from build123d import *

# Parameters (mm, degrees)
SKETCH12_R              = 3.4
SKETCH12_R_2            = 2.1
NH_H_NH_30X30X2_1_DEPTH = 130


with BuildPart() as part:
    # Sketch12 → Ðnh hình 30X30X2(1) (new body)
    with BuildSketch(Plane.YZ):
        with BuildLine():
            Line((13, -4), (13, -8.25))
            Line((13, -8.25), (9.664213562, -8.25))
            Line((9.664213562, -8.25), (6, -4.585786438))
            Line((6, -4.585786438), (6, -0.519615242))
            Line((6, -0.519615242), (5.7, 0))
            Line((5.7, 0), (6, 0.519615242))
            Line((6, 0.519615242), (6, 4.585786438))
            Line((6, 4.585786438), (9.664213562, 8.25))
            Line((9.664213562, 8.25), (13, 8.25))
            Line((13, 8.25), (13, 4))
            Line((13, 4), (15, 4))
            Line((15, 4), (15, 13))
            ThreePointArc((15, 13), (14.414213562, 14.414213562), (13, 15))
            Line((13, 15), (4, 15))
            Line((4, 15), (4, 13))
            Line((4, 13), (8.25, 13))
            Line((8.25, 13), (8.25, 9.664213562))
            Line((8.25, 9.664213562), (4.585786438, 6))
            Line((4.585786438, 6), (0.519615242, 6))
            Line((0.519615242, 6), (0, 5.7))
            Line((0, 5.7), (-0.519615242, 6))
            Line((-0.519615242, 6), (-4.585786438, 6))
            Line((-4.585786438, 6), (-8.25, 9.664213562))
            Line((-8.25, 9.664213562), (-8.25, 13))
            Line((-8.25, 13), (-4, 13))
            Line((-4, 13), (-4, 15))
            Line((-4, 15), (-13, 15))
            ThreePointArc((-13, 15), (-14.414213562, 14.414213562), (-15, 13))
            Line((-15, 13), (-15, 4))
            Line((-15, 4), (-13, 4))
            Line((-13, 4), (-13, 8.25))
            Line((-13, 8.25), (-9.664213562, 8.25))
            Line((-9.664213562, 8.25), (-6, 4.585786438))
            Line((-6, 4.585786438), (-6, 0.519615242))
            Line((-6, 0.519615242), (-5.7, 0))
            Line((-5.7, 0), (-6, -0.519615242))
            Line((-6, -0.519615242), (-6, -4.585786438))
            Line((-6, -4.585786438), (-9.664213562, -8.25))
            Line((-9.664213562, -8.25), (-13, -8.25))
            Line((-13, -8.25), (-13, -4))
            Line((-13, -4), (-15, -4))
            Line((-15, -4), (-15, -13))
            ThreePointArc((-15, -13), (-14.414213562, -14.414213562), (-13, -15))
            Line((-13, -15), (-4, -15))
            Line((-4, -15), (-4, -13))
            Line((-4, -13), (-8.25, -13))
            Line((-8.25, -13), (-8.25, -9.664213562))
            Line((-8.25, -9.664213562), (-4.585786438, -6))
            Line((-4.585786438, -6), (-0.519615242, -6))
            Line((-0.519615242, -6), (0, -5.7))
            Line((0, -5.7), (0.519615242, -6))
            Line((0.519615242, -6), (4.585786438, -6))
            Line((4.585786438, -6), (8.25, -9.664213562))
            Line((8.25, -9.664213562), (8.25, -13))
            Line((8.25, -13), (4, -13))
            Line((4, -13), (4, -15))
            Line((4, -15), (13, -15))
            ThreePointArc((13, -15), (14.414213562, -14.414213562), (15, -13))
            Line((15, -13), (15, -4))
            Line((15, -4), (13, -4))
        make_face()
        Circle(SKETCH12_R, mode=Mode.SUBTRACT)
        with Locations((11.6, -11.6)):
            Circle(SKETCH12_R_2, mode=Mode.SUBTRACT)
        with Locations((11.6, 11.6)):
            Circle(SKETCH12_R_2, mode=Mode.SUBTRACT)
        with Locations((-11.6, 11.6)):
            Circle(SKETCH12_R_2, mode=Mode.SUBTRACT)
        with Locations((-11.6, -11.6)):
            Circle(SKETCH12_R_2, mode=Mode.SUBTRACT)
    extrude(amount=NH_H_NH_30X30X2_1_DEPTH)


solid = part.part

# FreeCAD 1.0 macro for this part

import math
import FreeCAD as App
import Part
import Sketcher
from FreeCAD import Vector
Q = App.Units.Quantity

doc = App.newDocument("Part")
body = doc.addObject("PartDesign::Body", "Body")

# Sketch on YZ plane
sketch1 = body.newObject("Sketcher::SketchObject", "Sketch")
sketch1.AttachmentSupport = (doc.getObject("YZ_Plane"), [""])
sketch1.MapMode = "FlatFace"
sketch1.addGeometry([
    Part.LineSegment(Vector(13, -4, 0), Vector(13, -8.2, 0)),  # 0
    Part.LineSegment(Vector(13, -8.2, 0), Vector(9.7, -8.2, 0)),  # 1
    Part.LineSegment(Vector(9.7, -8.2, 0), Vector(6, -4.6, 0)),  # 2
    Part.LineSegment(Vector(6, -4.6, 0), Vector(6, -0.5, 0)),  # 3
    Part.LineSegment(Vector(6, -0.5, 0), Vector(5.7, 0, 0)),  # 4
    Part.LineSegment(Vector(5.7, 0, 0), Vector(6, 0.5, 0)),  # 5
    Part.LineSegment(Vector(6, 0.5, 0), Vector(6, 4.6, 0)),  # 6
    Part.LineSegment(Vector(6, 4.6, 0), Vector(9.7, 8.2, 0)),  # 7
    Part.LineSegment(Vector(9.7, 8.2, 0), Vector(13, 8.2, 0)),  # 8
    Part.LineSegment(Vector(13, 8.2, 0), Vector(13, 4, 0)),  # 9
    Part.LineSegment(Vector(13, 4, 0), Vector(15, 4, 0)),  # 10
    Part.LineSegment(Vector(15, 4, 0), Vector(15, 13, 0)),  # 11
    Part.ArcOfCircle(Part.Circle(Vector(13, 13, 0), Vector(0, 0, 1), 2), math.radians(0), math.radians(90)),  # 12
    Part.LineSegment(Vector(13, 15, 0), Vector(4, 15, 0)),  # 13
    Part.LineSegment(Vector(4, 15, 0), Vector(4, 13, 0)),  # 14
    Part.LineSegment(Vector(4, 13, 0), Vector(8.2, 13, 0)),  # 15
    Part.LineSegment(Vector(8.2, 13, 0), Vector(8.2, 9.7, 0)),  # 16
    Part.LineSegment(Vector(8.2, 9.7, 0), Vector(4.6, 6, 0)),  # 17
    Part.LineSegment(Vector(4.6, 6, 0), Vector(0.5, 6, 0)),  # 18
    Part.LineSegment(Vector(0.5, 6, 0), Vector(0, 5.7, 0)),  # 19
    Part.LineSegment(Vector(0, 5.7, 0), Vector(-0.5, 6, 0)),  # 20
    Part.LineSegment(Vector(-0.5, 6, 0), Vector(-4.6, 6, 0)),  # 21
    Part.LineSegment(Vector(-4.6, 6, 0), Vector(-8.2, 9.7, 0)),  # 22
    Part.LineSegment(Vector(-8.2, 9.7, 0), Vector(-8.2, 13, 0)),  # 23
    Part.LineSegment(Vector(-8.2, 13, 0), Vector(-4, 13, 0)),  # 24
    Part.LineSegment(Vector(-4, 13, 0), Vector(-4, 15, 0)),  # 25
    Part.LineSegment(Vector(-4, 15, 0), Vector(-13, 15, 0)),  # 26
    Part.ArcOfCircle(Part.Circle(Vector(-13, 13, 0), Vector(0, 0, 1), 2), math.radians(90), math.radians(180)),  # 27
    Part.LineSegment(Vector(-15, 13, 0), Vector(-15, 4, 0)),  # 28
    Part.LineSegment(Vector(-15, 4, 0), Vector(-13, 4, 0)),  # 29
    Part.LineSegment(Vector(-13, 4, 0), Vector(-13, 8.2, 0)),  # 30
    Part.LineSegment(Vector(-13, 8.2, 0), Vector(-9.7, 8.2, 0)),  # 31
    Part.LineSegment(Vector(-9.7, 8.2, 0), Vector(-6, 4.6, 0)),  # 32
    Part.LineSegment(Vector(-6, 4.6, 0), Vector(-6, 0.5, 0)),  # 33
    Part.LineSegment(Vector(-6, 0.5, 0), Vector(-5.7, 0, 0)),  # 34
    Part.LineSegment(Vector(-5.7, 0, 0), Vector(-6, -0.5, 0)),  # 35
    Part.LineSegment(Vector(-6, -0.5, 0), Vector(-6, -4.6, 0)),  # 36
    Part.LineSegment(Vector(-6, -4.6, 0), Vector(-9.7, -8.2, 0)),  # 37
    Part.LineSegment(Vector(-9.7, -8.2, 0), Vector(-13, -8.2, 0)),  # 38
    Part.LineSegment(Vector(-13, -8.2, 0), Vector(-13, -4, 0)),  # 39
    Part.LineSegment(Vector(-13, -4, 0), Vector(-15, -4, 0)),  # 40
    Part.LineSegment(Vector(-15, -4, 0), Vector(-15, -13, 0)),  # 41
    Part.ArcOfCircle(Part.Circle(Vector(-13, -13, 0), Vector(0, 0, 1), 2), math.radians(-180), math.radians(-90)),  # 42
    Part.LineSegment(Vector(-13, -15, 0), Vector(-4, -15, 0)),  # 43
    Part.LineSegment(Vector(-4, -15, 0), Vector(-4, -13, 0)),  # 44
    Part.LineSegment(Vector(-4, -13, 0), Vector(-8.2, -13, 0)),  # 45
    Part.LineSegment(Vector(-8.2, -13, 0), Vector(-8.2, -9.7, 0)),  # 46
    Part.LineSegment(Vector(-8.2, -9.7, 0), Vector(-4.6, -6, 0)),  # 47
    Part.LineSegment(Vector(-4.6, -6, 0), Vector(-0.5, -6, 0)),  # 48
    Part.LineSegment(Vector(-0.5, -6, 0), Vector(0, -5.7, 0)),  # 49
    Part.LineSegment(Vector(0, -5.7, 0), Vector(0.5, -6, 0)),  # 50
    Part.LineSegment(Vector(0.5, -6, 0), Vector(4.6, -6, 0)),  # 51
    Part.LineSegment(Vector(4.6, -6, 0), Vector(8.2, -9.7, 0)),  # 52
    Part.LineSegment(Vector(8.2, -9.7, 0), Vector(8.2, -13, 0)),  # 53
    Part.LineSegment(Vector(8.2, -13, 0), Vector(4, -13, 0)),  # 54
    Part.LineSegment(Vector(4, -13, 0), Vector(4, -15, 0)),  # 55
    Part.LineSegment(Vector(4, -15, 0), Vector(13, -15, 0)),  # 56
    Part.ArcOfCircle(Part.Circle(Vector(13, -13, 0), Vector(0, 0, 1), 2), math.radians(-90), math.radians(0)),  # 57
    Part.LineSegment(Vector(15, -13, 0), Vector(15, -4, 0)),  # 58
    Part.LineSegment(Vector(15, -4, 0), Vector(13, -4, 0)),  # 59
    Part.Circle(Vector(-11.6, -11.6, 0), Vector(0, 0, 1), 2.1),  # 60
    Part.Circle(Vector(11.6, -11.6, 0), Vector(0, 0, 1), 2.1),  # 61
    Part.Circle(Vector(-11.6, 11.6, 0), Vector(0, 0, 1), 2.1),  # 62
    Part.Circle(Vector(0, 0, 0), Vector(0, 0, 1), 3.4),  # 63
    Part.Circle(Vector(11.6, 11.6, 0), Vector(0, 0, 1), 2.1),  # 64
], False)
sketch1.addConstraint([
    Sketcher.Constraint("Coincident", 0, 2, 1, 1),
    Sketcher.Constraint("Coincident", 1, 2, 2, 1),
    Sketcher.Constraint("Coincident", 2, 2, 3, 1),
    Sketcher.Constraint("Coincident", 3, 2, 4, 1),
    Sketcher.Constraint("Coincident", 4, 2, 5, 1),
    Sketcher.Constraint("Coincident", 5, 2, 6, 1),
    Sketcher.Constraint("Coincident", 6, 2, 7, 1),
    Sketcher.Constraint("Coincident", 7, 2, 8, 1),
    Sketcher.Constraint("Coincident", 8, 2, 9, 1),
    Sketcher.Constraint("Coincident", 9, 2, 10, 1),
    Sketcher.Constraint("Coincident", 10, 2, 11, 1),
    Sketcher.Constraint("Tangent", 11, 2, 12, 1),
    Sketcher.Constraint("Tangent", 12, 2, 13, 1),
    Sketcher.Constraint("Coincident", 13, 2, 14, 1),
    Sketcher.Constraint("Coincident", 14, 2, 15, 1),
    Sketcher.Constraint("Coincident", 15, 2, 16, 1),
    Sketcher.Constraint("Coincident", 16, 2, 17, 1),
    Sketcher.Constraint("Coincident", 17, 2, 18, 1),
    Sketcher.Constraint("Coincident", 18, 2, 19, 1),
    Sketcher.Constraint("Coincident", 19, 2, 20, 1),
    Sketcher.Constraint("Coincident", 20, 2, 21, 1),
    Sketcher.Constraint("Coincident", 21, 2, 22, 1),
    Sketcher.Constraint("Coincident", 22, 2, 23, 1),
    Sketcher.Constraint("Coincident", 23, 2, 24, 1),
    Sketcher.Constraint("Coincident", 24, 2, 25, 1),
    Sketcher.Constraint("Coincident", 25, 2, 26, 1),
    Sketcher.Constraint("Tangent", 26, 2, 27, 1),
    Sketcher.Constraint("Tangent", 27, 2, 28, 1),
    Sketcher.Constraint("Coincident", 28, 2, 29, 1),
    Sketcher.Constraint("Coincident", 29, 2, 30, 1),
    Sketcher.Constraint("Coincident", 30, 2, 31, 1),
    Sketcher.Constraint("Coincident", 31, 2, 32, 1),
    Sketcher.Constraint("Coincident", 32, 2, 33, 1),
    Sketcher.Constraint("Coincident", 33, 2, 34, 1),
    Sketcher.Constraint("Coincident", 34, 2, 35, 1),
    Sketcher.Constraint("Coincident", 35, 2, 36, 1),
    Sketcher.Constraint("Coincident", 36, 2, 37, 1),
    Sketcher.Constraint("Coincident", 37, 2, 38, 1),
    Sketcher.Constraint("Coincident", 38, 2, 39, 1),
    Sketcher.Constraint("Coincident", 39, 2, 40, 1),
    Sketcher.Constraint("Coincident", 40, 2, 41, 1),
    Sketcher.Constraint("Tangent", 41, 2, 42, 1),
    Sketcher.Constraint("Tangent", 42, 2, 43, 1),
    Sketcher.Constraint("Coincident", 43, 2, 44, 1),
    Sketcher.Constraint("Coincident", 44, 2, 45, 1),
    Sketcher.Constraint("Coincident", 45, 2, 46, 1),
    Sketcher.Constraint("Coincident", 46, 2, 47, 1),
    Sketcher.Constraint("Coincident", 47, 2, 48, 1),
    Sketcher.Constraint("Coincident", 48, 2, 49, 1),
    Sketcher.Constraint("Coincident", 49, 2, 50, 1),
    Sketcher.Constraint("Coincident", 50, 2, 51, 1),
    Sketcher.Constraint("Coincident", 51, 2, 52, 1),
    Sketcher.Constraint("Coincident", 52, 2, 53, 1),
    Sketcher.Constraint("Coincident", 53, 2, 54, 1),
    Sketcher.Constraint("Coincident", 54, 2, 55, 1),
    Sketcher.Constraint("Coincident", 55, 2, 56, 1),
    Sketcher.Constraint("Tangent", 56, 2, 57, 1),
    Sketcher.Constraint("Tangent", 57, 2, 58, 1),
    Sketcher.Constraint("Coincident", 58, 2, 59, 1),
    Sketcher.Constraint("Coincident", 59, 2, 0, 1),
    Sketcher.Constraint("Vertical", 0),
    Sketcher.Constraint("Horizontal", 1),
    Sketcher.Constraint("Vertical", 3),
    Sketcher.Constraint("Vertical", 6),
    Sketcher.Constraint("Horizontal", 8),
    Sketcher.Constraint("Vertical", 9),
    Sketcher.Constraint("Horizontal", 10),
    Sketcher.Constraint("Vertical", 11),
    Sketcher.Constraint("Horizontal", 13),
    Sketcher.Constraint("Vertical", 14),
    Sketcher.Constraint("Horizontal", 15),
    Sketcher.Constraint("Vertical", 16),
    Sketcher.Constraint("Horizontal", 18),
    Sketcher.Constraint("Horizontal", 21),
    Sketcher.Constraint("Vertical", 23),
    Sketcher.Constraint("Horizontal", 24),
    Sketcher.Constraint("Vertical", 25),
    Sketcher.Constraint("Horizontal", 26),
    Sketcher.Constraint("Vertical", 28),
    Sketcher.Constraint("Horizontal", 29),
    Sketcher.Constraint("Vertical", 30),
    Sketcher.Constraint("Horizontal", 31),
    Sketcher.Constraint("Vertical", 33),
    Sketcher.Constraint("Vertical", 36),
    Sketcher.Constraint("Horizontal", 38),
    Sketcher.Constraint("Vertical", 39),
    Sketcher.Constraint("Horizontal", 40),
    Sketcher.Constraint("Vertical", 41),
    Sketcher.Constraint("Horizontal", 43),
    Sketcher.Constraint("Vertical", 44),
    Sketcher.Constraint("Horizontal", 45),
    Sketcher.Constraint("Vertical", 46),
    Sketcher.Constraint("Horizontal", 48),
    Sketcher.Constraint("Horizontal", 51),
    Sketcher.Constraint("Vertical", 53),
    Sketcher.Constraint("Horizontal", 54),
    Sketcher.Constraint("Vertical", 55),
    Sketcher.Constraint("Horizontal", 56),
    Sketcher.Constraint("Vertical", 58),
    Sketcher.Constraint("Horizontal", 59),
    Sketcher.Constraint("Coincident", 63, 3, -1, 1),
    Sketcher.Constraint("Equal", 12, 27),
    Sketcher.Constraint("Equal", 27, 42),
    Sketcher.Constraint("Equal", 42, 57),
    Sketcher.Constraint("Equal", 60, 61),
    Sketcher.Constraint("Equal", 61, 62),
    Sketcher.Constraint("Equal", 62, 64),
    Sketcher.Constraint("Symmetric", 12, 3, 42, 3, -1, 1),
    Sketcher.Constraint("Symmetric", 27, 3, 57, 3, -1, 1),
    Sketcher.Constraint("Symmetric", 61, 3, 62, 3, -1, 1),
    Sketcher.Constraint("Symmetric", 60, 3, 64, 3, -1, 1),
    Sketcher.Constraint("Symmetric", 0, 2, 30, 2, -1, 1),
    Sketcher.Constraint("Symmetric", 2, 2, 32, 2, -1, 1),
    Sketcher.Constraint("Symmetric", 4, 2, 34, 2, -1, 1),
    Sketcher.Constraint("Symmetric", 5, 2, 35, 2, -1, 1),
    Sketcher.Constraint("Symmetric", 7, 2, 37, 2, -1, 1),
    Sketcher.Constraint("Symmetric", 9, 2, 39, 2, -1, 1),
    Sketcher.Constraint("Symmetric", 14, 2, 44, 2, -1, 1),
    Sketcher.Constraint("Symmetric", 16, 2, 46, 2, -1, 1),
    Sketcher.Constraint("Symmetric", 17, 2, 47, 2, -1, 1),
    Sketcher.Constraint("Symmetric", 19, 2, 49, 2, -1, 1),
    Sketcher.Constraint("Symmetric", 20, 2, 50, 2, -1, 1),
    Sketcher.Constraint("Symmetric", 22, 2, 52, 2, -1, 1),
    Sketcher.Constraint("Symmetric", 24, 2, 54, 2, -1, 1),
    Sketcher.Constraint("Symmetric", 12, 3, 27, 3, -2),
    Sketcher.Constraint("Symmetric", 60, 3, 61, 3, -2),
    Sketcher.Constraint("Symmetric", 18, 2, 20, 2, -2),
    Sketcher.Constraint("Symmetric", 16, 2, 22, 2, -2),
    Sketcher.Constraint("Symmetric", 14, 2, 24, 2, -2),
    Sketcher.Constraint("Symmetric", 9, 2, 29, 2, -2),
    Sketcher.Constraint("Symmetric", 7, 2, 31, 2, -2),
    Sketcher.Constraint("Symmetric", 6, 2, 32, 2, -2),
    Sketcher.Constraint("PointOnObject", 4, 2, -1),
    Sketcher.Constraint("PointOnObject", 19, 2, -2),
    Sketcher.Constraint("Perpendicular", 2, 7),
    Sketcher.Constraint("Parallel", 7, 17),
    Sketcher.Constraint("Perpendicular", 4, 19),
    Sketcher.Constraint("Perpendicular", 5, 20),
    Sketcher.Constraint("Perpendicular", 17, 22),
    Sketcher.Constraint("Parallel", 22, 32),
    Sketcher.Constraint("Perpendicular", 19, 34),
    Sketcher.Constraint("Perpendicular", 32, 37),
    Sketcher.Constraint("Perpendicular", 34, 49),
    Sketcher.Constraint("Perpendicular", 47, 52),
    Sketcher.Constraint("Horizontal", 11, 2, 14, 2),
    Sketcher.Constraint("Horizontal", 40, 2, 58, 2),
    Sketcher.Constraint("Vertical", 57, 3, 0, 2),
    Sketcher.Constraint("Equal", 54, 0),
    Sketcher.Constraint("Equal", 51, 3),
    Sketcher.Constraint("Equal", 56, 11),
    Sketcher.Constraint("Equal", 38, 16),
    Sketcher.Constraint("Equal", 7, 17),
    Sketcher.Constraint("Equal", 5, 19),
    Sketcher.Constraint("Radius", 12, 2.0),
    Sketcher.Constraint("Diameter", 60, 4.2),
    Sketcher.Constraint("Diameter", 63, 6.8),
    Sketcher.Constraint("DistanceX", 13, 2, 13, 1, 9.0),
    Sketcher.Constraint("Angle", 4, Q("120 deg")),
    Sketcher.Constraint("DistanceX", -1, 1, 12, 3, 13.0),
    Sketcher.Constraint("DistanceX", -1, 1, 2, 2, 6.0),
    Sketcher.Constraint("Distance", 4, 0.6),
    Sketcher.Constraint("DistanceX", 15, 1, 15, 2, 4.25),
    Sketcher.Constraint("DistanceX", 60, 3, -1, 1, 11.6),
    Sketcher.Constraint("DistanceY", 60, 3, -1, 1, 11.6),
    Sketcher.Constraint("DistanceX", 18, 2, 18, 1, 4.066171),
])
pad1 = body.newObject("PartDesign::Pad", "Pad")
pad1.Profile = sketch1
pad1.Length = 130

doc.recompute()
